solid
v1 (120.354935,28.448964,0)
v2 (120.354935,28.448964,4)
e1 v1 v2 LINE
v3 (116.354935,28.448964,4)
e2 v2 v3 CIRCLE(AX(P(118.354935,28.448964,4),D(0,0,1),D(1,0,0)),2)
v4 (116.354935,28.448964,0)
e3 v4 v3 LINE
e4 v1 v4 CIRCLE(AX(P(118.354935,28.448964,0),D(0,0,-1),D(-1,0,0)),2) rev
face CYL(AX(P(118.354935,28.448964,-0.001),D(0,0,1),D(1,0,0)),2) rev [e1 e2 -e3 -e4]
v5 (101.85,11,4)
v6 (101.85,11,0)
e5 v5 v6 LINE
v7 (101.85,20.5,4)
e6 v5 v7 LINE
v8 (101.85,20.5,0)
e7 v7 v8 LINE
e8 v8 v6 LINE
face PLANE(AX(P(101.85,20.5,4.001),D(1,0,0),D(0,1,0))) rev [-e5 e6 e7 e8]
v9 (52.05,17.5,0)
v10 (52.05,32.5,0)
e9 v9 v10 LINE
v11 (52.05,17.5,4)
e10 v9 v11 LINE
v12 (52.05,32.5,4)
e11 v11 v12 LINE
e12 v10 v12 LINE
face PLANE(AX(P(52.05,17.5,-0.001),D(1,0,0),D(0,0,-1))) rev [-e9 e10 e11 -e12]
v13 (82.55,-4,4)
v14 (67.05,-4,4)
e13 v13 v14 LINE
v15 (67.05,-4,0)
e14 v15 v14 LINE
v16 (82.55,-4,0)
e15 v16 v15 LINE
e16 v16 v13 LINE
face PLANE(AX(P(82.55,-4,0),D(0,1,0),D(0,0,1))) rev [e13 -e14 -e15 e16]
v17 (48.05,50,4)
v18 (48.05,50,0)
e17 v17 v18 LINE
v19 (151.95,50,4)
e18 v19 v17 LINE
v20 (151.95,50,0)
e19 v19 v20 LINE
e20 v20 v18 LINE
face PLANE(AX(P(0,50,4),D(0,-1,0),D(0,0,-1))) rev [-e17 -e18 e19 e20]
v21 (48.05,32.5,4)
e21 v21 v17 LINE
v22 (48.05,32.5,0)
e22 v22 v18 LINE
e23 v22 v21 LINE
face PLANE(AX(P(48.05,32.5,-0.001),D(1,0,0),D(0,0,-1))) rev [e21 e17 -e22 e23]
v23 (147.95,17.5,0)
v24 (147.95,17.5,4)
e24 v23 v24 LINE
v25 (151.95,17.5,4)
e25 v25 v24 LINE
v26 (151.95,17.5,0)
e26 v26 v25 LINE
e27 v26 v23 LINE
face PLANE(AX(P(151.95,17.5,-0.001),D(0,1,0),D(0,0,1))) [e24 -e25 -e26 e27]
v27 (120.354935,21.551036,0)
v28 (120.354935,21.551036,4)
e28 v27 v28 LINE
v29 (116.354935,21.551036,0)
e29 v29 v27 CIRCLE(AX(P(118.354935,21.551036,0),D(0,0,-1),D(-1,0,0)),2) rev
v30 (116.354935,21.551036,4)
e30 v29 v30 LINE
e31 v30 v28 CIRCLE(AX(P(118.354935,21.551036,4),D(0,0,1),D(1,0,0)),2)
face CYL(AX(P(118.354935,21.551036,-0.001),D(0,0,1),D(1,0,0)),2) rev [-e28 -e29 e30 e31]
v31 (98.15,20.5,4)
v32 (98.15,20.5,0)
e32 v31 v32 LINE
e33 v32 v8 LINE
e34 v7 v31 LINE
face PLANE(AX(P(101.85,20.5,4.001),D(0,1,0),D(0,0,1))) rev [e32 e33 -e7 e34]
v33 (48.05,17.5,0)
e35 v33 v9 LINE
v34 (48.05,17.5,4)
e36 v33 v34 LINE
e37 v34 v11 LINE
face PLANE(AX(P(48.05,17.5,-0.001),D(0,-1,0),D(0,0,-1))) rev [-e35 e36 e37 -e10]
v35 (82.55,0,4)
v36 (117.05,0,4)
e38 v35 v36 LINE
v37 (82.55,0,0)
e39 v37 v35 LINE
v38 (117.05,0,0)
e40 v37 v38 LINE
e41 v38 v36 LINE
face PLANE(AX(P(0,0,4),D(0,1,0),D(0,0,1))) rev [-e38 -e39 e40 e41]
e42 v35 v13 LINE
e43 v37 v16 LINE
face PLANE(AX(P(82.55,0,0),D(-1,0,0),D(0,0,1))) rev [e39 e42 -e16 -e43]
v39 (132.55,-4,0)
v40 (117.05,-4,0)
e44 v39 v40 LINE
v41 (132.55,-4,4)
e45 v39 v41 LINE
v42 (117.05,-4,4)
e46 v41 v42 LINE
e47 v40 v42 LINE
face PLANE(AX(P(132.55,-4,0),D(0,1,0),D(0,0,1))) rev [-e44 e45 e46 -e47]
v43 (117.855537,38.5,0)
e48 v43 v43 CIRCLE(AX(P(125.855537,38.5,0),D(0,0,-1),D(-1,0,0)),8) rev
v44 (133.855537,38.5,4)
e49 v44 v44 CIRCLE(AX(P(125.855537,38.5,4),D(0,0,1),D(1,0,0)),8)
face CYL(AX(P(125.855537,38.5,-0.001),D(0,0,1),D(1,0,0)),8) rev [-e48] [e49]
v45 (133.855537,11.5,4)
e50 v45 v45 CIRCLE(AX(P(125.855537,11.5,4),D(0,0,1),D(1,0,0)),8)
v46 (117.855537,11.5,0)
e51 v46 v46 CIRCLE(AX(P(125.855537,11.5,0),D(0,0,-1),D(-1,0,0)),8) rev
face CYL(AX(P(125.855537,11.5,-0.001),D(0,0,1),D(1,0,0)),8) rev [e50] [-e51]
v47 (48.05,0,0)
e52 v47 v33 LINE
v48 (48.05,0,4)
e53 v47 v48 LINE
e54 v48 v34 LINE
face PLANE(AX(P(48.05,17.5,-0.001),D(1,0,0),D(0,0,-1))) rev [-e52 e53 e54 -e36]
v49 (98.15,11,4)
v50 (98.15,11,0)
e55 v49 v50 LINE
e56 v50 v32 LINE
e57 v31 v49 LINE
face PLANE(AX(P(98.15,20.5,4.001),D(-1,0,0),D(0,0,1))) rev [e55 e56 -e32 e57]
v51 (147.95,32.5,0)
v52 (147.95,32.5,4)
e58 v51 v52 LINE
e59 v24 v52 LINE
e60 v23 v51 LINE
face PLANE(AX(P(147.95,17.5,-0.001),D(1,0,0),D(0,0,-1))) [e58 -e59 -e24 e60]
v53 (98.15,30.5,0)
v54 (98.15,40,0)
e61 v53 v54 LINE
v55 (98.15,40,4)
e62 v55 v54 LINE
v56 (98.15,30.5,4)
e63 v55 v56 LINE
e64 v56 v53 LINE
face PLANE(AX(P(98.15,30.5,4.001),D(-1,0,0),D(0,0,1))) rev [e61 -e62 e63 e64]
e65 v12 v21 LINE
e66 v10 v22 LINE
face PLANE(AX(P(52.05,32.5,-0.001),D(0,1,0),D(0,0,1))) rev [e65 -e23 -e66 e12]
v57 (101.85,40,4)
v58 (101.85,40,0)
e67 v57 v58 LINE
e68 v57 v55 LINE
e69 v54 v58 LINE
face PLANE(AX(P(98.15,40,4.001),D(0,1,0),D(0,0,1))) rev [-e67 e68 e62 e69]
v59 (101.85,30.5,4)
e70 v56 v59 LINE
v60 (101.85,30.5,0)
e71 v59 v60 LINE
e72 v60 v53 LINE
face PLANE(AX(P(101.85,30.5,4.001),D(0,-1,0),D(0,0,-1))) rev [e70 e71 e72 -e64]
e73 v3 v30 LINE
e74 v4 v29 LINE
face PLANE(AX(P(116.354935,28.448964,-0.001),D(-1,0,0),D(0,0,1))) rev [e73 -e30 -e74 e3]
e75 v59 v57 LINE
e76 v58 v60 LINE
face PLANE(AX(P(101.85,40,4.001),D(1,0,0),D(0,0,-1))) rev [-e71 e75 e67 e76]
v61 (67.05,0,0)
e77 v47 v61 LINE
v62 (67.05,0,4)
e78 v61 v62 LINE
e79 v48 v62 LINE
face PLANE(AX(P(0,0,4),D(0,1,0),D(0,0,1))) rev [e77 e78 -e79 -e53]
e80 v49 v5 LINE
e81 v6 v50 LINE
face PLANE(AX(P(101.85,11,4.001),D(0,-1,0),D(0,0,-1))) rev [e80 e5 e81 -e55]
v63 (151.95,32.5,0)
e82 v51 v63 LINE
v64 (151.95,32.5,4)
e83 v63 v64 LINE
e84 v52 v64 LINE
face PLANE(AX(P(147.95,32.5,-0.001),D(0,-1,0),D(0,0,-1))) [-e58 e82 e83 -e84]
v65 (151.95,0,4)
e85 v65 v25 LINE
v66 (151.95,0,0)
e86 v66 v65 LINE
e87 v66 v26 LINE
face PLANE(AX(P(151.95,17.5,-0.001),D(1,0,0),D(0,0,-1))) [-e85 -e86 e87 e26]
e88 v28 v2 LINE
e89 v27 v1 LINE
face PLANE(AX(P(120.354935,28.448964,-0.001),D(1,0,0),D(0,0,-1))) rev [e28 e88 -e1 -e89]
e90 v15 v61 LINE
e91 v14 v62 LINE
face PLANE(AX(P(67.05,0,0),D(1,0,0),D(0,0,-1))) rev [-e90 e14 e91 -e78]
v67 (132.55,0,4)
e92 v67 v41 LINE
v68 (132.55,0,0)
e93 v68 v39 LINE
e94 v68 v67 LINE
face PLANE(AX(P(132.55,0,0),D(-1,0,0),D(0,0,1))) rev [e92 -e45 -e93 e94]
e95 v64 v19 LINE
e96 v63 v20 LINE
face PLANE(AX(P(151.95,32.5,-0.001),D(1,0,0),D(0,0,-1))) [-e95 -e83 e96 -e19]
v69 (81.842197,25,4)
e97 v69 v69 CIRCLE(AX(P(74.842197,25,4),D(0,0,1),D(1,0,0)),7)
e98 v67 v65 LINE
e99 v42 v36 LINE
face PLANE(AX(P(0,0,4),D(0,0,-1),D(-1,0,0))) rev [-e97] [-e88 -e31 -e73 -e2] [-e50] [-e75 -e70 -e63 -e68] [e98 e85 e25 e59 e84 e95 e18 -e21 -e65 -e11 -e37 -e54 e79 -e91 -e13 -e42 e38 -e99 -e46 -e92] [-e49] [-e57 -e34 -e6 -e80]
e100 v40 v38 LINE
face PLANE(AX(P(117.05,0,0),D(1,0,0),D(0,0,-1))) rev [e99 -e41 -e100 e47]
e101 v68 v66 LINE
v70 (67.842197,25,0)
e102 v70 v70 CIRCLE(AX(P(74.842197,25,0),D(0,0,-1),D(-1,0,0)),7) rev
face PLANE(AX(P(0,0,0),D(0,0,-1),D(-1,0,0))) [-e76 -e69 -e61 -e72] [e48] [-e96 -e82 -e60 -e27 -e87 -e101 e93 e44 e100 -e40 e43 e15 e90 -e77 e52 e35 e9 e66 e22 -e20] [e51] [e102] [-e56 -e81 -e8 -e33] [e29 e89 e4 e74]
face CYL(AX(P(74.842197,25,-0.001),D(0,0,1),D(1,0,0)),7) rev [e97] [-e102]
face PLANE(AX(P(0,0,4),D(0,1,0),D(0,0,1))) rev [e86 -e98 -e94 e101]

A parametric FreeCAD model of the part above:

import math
import FreeCAD as App
import Part
import Sketcher

V = App.Vector


def add_polygon(sketch, points):
    """Adds a closed chain of lines whose ends are joined by coincident constraints."""
    first, n = sketch.GeometryCount, len(points)
    for a, b in zip(points, points[1:] + points[:1]):
        sketch.addGeometry(Part.LineSegment(App.Vector(*a, 0), App.Vector(*b, 0)), False)
    for i in range(n):
        sketch.addConstraint(Sketcher.Constraint("Coincident", first + i, 2, first + (i + 1) % n, 1))

doc = App.newDocument("Part")
body = doc.addObject("PartDesign::Body", "Body")

sketch1 = doc.addObject("Sketcher::SketchObject", "Sketch")
body.addObject(sketch1)
sketch1.AttachmentSupport = (doc.XY_Plane, [""])
sketch1.MapMode = "FlatFace"
add_polygon(sketch1, [(0, 50), (0, 0), (200, 0), (200, 50)])
sketch1.addConstraint(Sketcher.Constraint("Vertical", 0))
sketch1.addConstraint(Sketcher.Constraint("Horizontal", 1))
sketch1.addConstraint(Sketcher.Constraint("Vertical", 2))
sketch1.addConstraint(Sketcher.Constraint("Horizontal", 3))
sketch1.addConstraint(Sketcher.Constraint("Coincident", 0, 2, -1, 1))
sketch1.addConstraint(Sketcher.Constraint("DistanceX", 1, 1, 1, 2, 200.0))
sketch1.addConstraint(Sketcher.Constraint("DistanceY", 0, 2, 0, 1, 50.0))
pad1 = doc.addObject("PartDesign::Pad", "Pad")
body.addObject(pad1)
pad1.Profile = sketch1
pad1.Length = 4

sketch2 = doc.addObject("Sketcher::SketchObject", "Sketch001")
body.addObject(sketch2)
sketch2.AttachmentSupport = (doc.XY_Plane, [""])
sketch2.MapMode = "FlatFace"
sketch2.AttachmentOffset = App.Placement(V(0, 0, 4), App.Rotation())
add_polygon(sketch2, [(182.6, 0), (182.6, -4), (167.1, -4), (167.1, 0)])
add_polygon(sketch2, [(132.6, 0), (132.6, -4), (117, -4), (117, 0)])
add_polygon(sketch2, [(82.5, 0), (82.5, -4), (67, -4), (67, 0)])
add_polygon(sketch2, [(32.5, 0), (32.5, -4), (17.1, -4), (17.1, 0)])
sketch2.addConstraint(Sketcher.Constraint("Vertical", 0))
sketch2.addConstraint(Sketcher.Constraint("Horizontal", 1))
sketch2.addConstraint(Sketcher.Constraint("Vertical", 2))
sketch2.addConstraint(Sketcher.Constraint("Horizontal", 3))
sketch2.addConstraint(Sketcher.Constraint("Vertical", 4))
sketch2.addConstraint(Sketcher.Constraint("Horizontal", 5))
sketch2.addConstraint(Sketcher.Constraint("Vertical", 6))
sketch2.addConstraint(Sketcher.Constraint("Horizontal", 7))
sketch2.addConstraint(Sketcher.Constraint("Vertical", 8))
sketch2.addConstraint(Sketcher.Constraint("Horizontal", 9))
sketch2.addConstraint(Sketcher.Constraint("Vertical", 10))
sketch2.addConstraint(Sketcher.Constraint("Horizontal", 11))
sketch2.addConstraint(Sketcher.Constraint("Vertical", 12))
sketch2.addConstraint(Sketcher.Constraint("Horizontal", 13))
sketch2.addConstraint(Sketcher.Constraint("Vertical", 14))
sketch2.addConstraint(Sketcher.Constraint("Horizontal", 15))
sketch2.addConstraint(Sketcher.Constraint("PointOnObject", 2, 2, -1))
sketch2.addConstraint(Sketcher.Constraint("PointOnObject", 6, 2, -1))
sketch2.addConstraint(Sketcher.Constraint("PointOnObject", 10, 2, -1))
sketch2.addConstraint(Sketcher.Constraint("PointOnObject", 14, 2, -1))
sketch2.addConstraint(Sketcher.Constraint("Horizontal", 1, 2, 4, 2))
sketch2.addConstraint(Sketcher.Constraint("Horizontal", 5, 2, 8, 2))
sketch2.addConstraint(Sketcher.Constraint("Horizontal", 9, 2, 12, 2))
sketch2.addConstraint(Sketcher.Constraint("Equal", 3, 5))
sketch2.addConstraint(Sketcher.Constraint("Equal", 7, 9))
sketch2.addConstraint(Sketcher.Constraint("Equal", 11, 13))
sketch2.addConstraint(Sketcher.Constraint("DistanceY", 0, 2, 0, 1, 4.0))
sketch2.addConstraint(Sketcher.Constraint("DistanceX", 1, 2, 1, 1, 15.5))
sketch2.addConstraint(Sketcher.Constraint("DistanceX", 4, 2, 0, 2, 50.0))
sketch2.addConstraint(Sketcher.Constraint("DistanceX", 8, 2, 4, 2, 50.0))
sketch2.addConstraint(Sketcher.Constraint("DistanceX", 12, 2, 8, 2, 50.0))
sketch2.addConstraint(Sketcher.Constraint("DistanceX", -1, 1, 0, 2, 182.55))
pad2 = doc.addObject("PartDesign::Pad", "Pad001")
body.addObject(pad2)
pad2.Profile = sketch2
pad2.Length = 4
pad2.Reversed = True

sketch3 = doc.addObject("Sketcher::SketchObject", "Sketch002")
body.addObject(sketch3)
sketch3.AttachmentSupport = (doc.XY_Plane, [""])
sketch3.MapMode = "FlatFace"
sketch3.AttachmentOffset = App.Placement(V(0, 0, 4), App.Rotation())
add_polygon(sketch3, [(0, 32.5), (0, 17.5), (4, 17.5), (4, 32.5)])
sketch3.addConstraint(Sketcher.Constraint("Vertical", 0))
sketch3.addConstraint(Sketcher.Constraint("Horizontal", 1))
sketch3.addConstraint(Sketcher.Constraint("Vertical", 2))
sketch3.addConstraint(Sketcher.Constraint("Horizontal", 3))
sketch3.addConstraint(Sketcher.Constraint("PointOnObject", 0, 2, -2))
sketch3.addConstraint(Sketcher.Constraint("DistanceX", 1, 1, 1, 2, 4.0))
sketch3.addConstraint(Sketcher.Constraint("DistanceY", 0, 2, 0, 1, 15.0))
sketch3.addConstraint(Sketcher.Constraint("DistanceY", -1, 1, 0, 2, 17.5))
pocket1 = doc.addObject("PartDesign::Pocket", "Pocket")
body.addObject(pocket1)
pocket1.Profile = sketch3
pocket1.Type = "UpToFirst"

sketch4 = doc.addObject("Sketcher::SketchObject", "Sketch003")
body.addObject(sketch4)
sketch4.AttachmentSupport = (doc.XY_Plane, [""])
sketch4.MapMode = "FlatFace"
sketch4.AttachmentOffset = App.Placement(V(0, 0, 4), App.Rotation())
add_polygon(sketch4, [(196, 32.5), (196, 17.5), (200, 17.5), (200, 32.5)])
sketch4.addConstraint(Sketcher.Constraint("Vertical", 0))
sketch4.addConstraint(Sketcher.Constraint("Horizontal", 1))
sketch4.addConstraint(Sketcher.Constraint("Vertical", 2))
sketch4.addConstraint(Sketcher.Constraint("Horizontal", 3))
sketch4.addConstraint(Sketcher.Constraint("DistanceX", 1, 1, 1, 2, 4.0))
sketch4.addConstraint(Sketcher.Constraint("DistanceY", 0, 2, 0, 1, 15.0))
sketch4.addConstraint(Sketcher.Constraint("DistanceX", -1, 1, 0, 2, 196.0))
sketch4.addConstraint(Sketcher.Constraint("DistanceY", -1, 1, 0, 2, 17.5))
pocket2 = doc.addObject("PartDesign::Pocket", "Pocket001")
body.addObject(pocket2)
pocket2.Profile = sketch4
pocket2.Type = "UpToFirst"

sketch5 = doc.addObject("Sketcher::SketchObject", "Sketch004")
body.addObject(sketch5)
sketch5.AttachmentSupport = (doc.XY_Plane, [""])
sketch5.MapMode = "FlatFace"
add_polygon(sketch5, [(101.8, 40), (101.8, 30.5), (98.2, 30.5), (98.2, 40)])
sketch5.addConstraint(Sketcher.Constraint("Vertical", 0))
sketch5.addConstraint(Sketcher.Constraint("Horizontal", 1))
sketch5.addConstraint(Sketcher.Constraint("Vertical", 2))
sketch5.addConstraint(Sketcher.Constraint("Horizontal", 3))
sketch5.addConstraint(Sketcher.Constraint("DistanceX", 1, 2, 1, 1, 3.7))
sketch5.addConstraint(Sketcher.Constraint("DistanceY", 0, 2, 0, 1, 9.5))
sketch5.addConstraint(Sketcher.Constraint("DistanceY", -1, 1, 2, 2, 40.0))
sketch5.addConstraint(Sketcher.Constraint("DistanceX", -1, 1, 0, 2, 101.85))
pocket3 = doc.addObject("PartDesign::Pocket", "Pocket002")
body.addObject(pocket3)
pocket3.Profile = sketch5
pocket3.Type = "UpToFirst"
pocket3.Reversed = True

sketch6 = doc.addObject("Sketcher::SketchObject", "Sketch005")
body.addObject(sketch6)
sketch6.AttachmentSupport = (doc.XY_Plane, [""])
sketch6.MapMode = "FlatFace"
add_polygon(sketch6, [(101.8, 20.5), (101.8, 11), (98.2, 11), (98.2, 20.5)])
sketch6.addConstraint(Sketcher.Constraint("Vertical", 0))
sketch6.addConstraint(Sketcher.Constraint("Horizontal", 1))
sketch6.addConstraint(Sketcher.Constraint("Vertical", 2))
sketch6.addConstraint(Sketcher.Constraint("Horizontal", 3))
sketch6.addConstraint(Sketcher.Constraint("DistanceX", 1, 2, 1, 1, 3.7))
sketch6.addConstraint(Sketcher.Constraint("DistanceY", 0, 2, 0, 1, 9.5))
sketch6.addConstraint(Sketcher.Constraint("DistanceY", -1, 1, 0, 2, 11.0))
sketch6.addConstraint(Sketcher.Constraint("DistanceX", -1, 1, 0, 2, 101.85))
pocket4 = doc.addObject("PartDesign::Pocket", "Pocket003")
body.addObject(pocket4)
pocket4.Profile = sketch6
pocket4.Type = "UpToFirst"
pocket4.Reversed = True

sketch7 = doc.addObject("Sketcher::SketchObject", "Sketch006")
body.addObject(sketch7)
sketch7.AttachmentSupport = (doc.XY_Plane, [""])
sketch7.MapMode = "FlatFace"
sketch7.AttachmentOffset = App.Placement(V(0, 0, 4), App.Rotation())
add_polygon(sketch7, [(52, 32.5), (48, 32.5), (48, 66.1), (-25.3, 66.1), (-25.3, -17.1), (48, -17.1), (48, 17.5), (52, 17.5)])
sketch7.addConstraint(Sketcher.Constraint("Horizontal", 0))
sketch7.addConstraint(Sketcher.Constraint("Vertical", 1))
sketch7.addConstraint(Sketcher.Constraint("Horizontal", 2))
sketch7.addConstraint(Sketcher.Constraint("Vertical", 3))
sketch7.addConstraint(Sketcher.Constraint("Horizontal", 4))
sketch7.addConstraint(Sketcher.Constraint("Vertical", 5))
sketch7.addConstraint(Sketcher.Constraint("Horizontal", 6))
sketch7.addConstraint(Sketcher.Constraint("Vertical", 7))
sketch7.addConstraint(Sketcher.Constraint("Vertical", 1, 2, 4, 2))
sketch7.addConstraint(Sketcher.Constraint("DistanceX", 0, 2, 0, 1, 4.0))
sketch7.addConstraint(Sketcher.Constraint("DistanceY", 7, 1, 7, 2, 15.0))
sketch7.addConstraint(Sketcher.Constraint("DistanceY", -1, 1, 0, 2, 32.5))
sketch7.addConstraint(Sketcher.Constraint("DistanceX", -1, 1, 0, 2, 48.05))
sketch7.addConstraint(Sketcher.Constraint("DistanceX", 2, 2, 2, 1, 73.351319))
sketch7.addConstraint(Sketcher.Constraint("DistanceY", 5, 1, 5, 2, 34.571359))
sketch7.addConstraint(Sketcher.Constraint("DistanceY", 1, 1, 1, 2, 33.641635))
pocket5 = doc.addObject("PartDesign::Pocket", "Pocket004")
body.addObject(pocket5)
pocket5.Profile = sketch7
pocket5.Length = 4
doc.recompute()

datumplane = doc.addObject("PartDesign::Plane", "DatumPlane")
body.addObject(datumplane)
datumplane.AttachmentSupport = (doc.YZ_Plane, [""])
datumplane.MapMode = "FlatFace"
datumplane.AttachmentOffset = App.Placement(V(0, 0, 100), App.Rotation())
mirrored = doc.addObject("PartDesign::Mirrored", "Mirrored")
body.addObject(mirrored)
mirrored.Originals = [pocket5]
mirrored.MirrorPlane = (datumplane, [""])
body.Tip = mirrored

sketch8 = doc.addObject("Sketcher::SketchObject", "Sketch007")
body.addObject(sketch8)
sketch8.AttachmentSupport = (doc.XY_Plane, [""])
sketch8.MapMode = "FlatFace"
sketch8.AttachmentOffset = App.Placement(V(0, 0, 4), App.Rotation())
sketch8.addGeometry(Part.Circle(V(126, 12, 0), V(0, 0, 1), 8), False)
sketch8.addConstraint(Sketcher.Constraint("Diameter", 0, 16.0))
sketch8.addConstraint(Sketcher.Constraint("DistanceY", -1, 1, 0, 3, 11.5))
sketch8.addConstraint(Sketcher.Constraint("DistanceX", -1, 1, 0, 3, 125.855537))
pocket6 = doc.addObject("PartDesign::Pocket", "Pocket005")
body.addObject(pocket6)
pocket6.Profile = sketch8
pocket6.Type = "UpToFirst"

sketch9 = doc.addObject("Sketcher::SketchObject", "Sketch008")
body.addObject(sketch9)
sketch9.AttachmentSupport = (doc.XY_Plane, [""])
sketch9.MapMode = "FlatFace"
sketch9.AttachmentOffset = App.Placement(V(0, 0, 4), App.Rotation())
sketch9.addGeometry(Part.Circle(V(126, 38, 0), V(0, 0, 1), 8), False)
sketch9.addConstraint(Sketcher.Constraint("Diameter", 0, 16.0))
sketch9.addConstraint(Sketcher.Constraint("DistanceY", -1, 1, 0, 3, 38.5))
sketch9.addConstraint(Sketcher.Constraint("DistanceX", -1, 1, 0, 3, 125.855537))
pocket7 = doc.addObject("PartDesign::Pocket", "Pocket006")
body.addObject(pocket7)
pocket7.Profile = sketch9
pocket7.Type = "UpToFirst"

sketch10 = doc.addObject("Sketcher::SketchObject", "Sketch009")
body.addObject(sketch10)
sketch10.AttachmentSupport = (doc.XY_Plane, [""])
sketch10.MapMode = "FlatFace"
sketch10.AttachmentOffset = App.Placement(V(0, 0, 4), App.Rotation())
sketch10.addGeometry(Part.Circle(V(75, 25, 0), V(0, 0, 1), 7), False)
sketch10.addConstraint(Sketcher.Constraint("Diameter", 0, 14.0))
sketch10.addConstraint(Sketcher.Constraint("DistanceY", -1, 1, 0, 3, 25.0))
sketch10.addConstraint(Sketcher.Constraint("DistanceX", -1, 1, 0, 3, 74.842197))
pocket8 = doc.addObject("PartDesign::Pocket", "Pocket007")
body.addObject(pocket8)
pocket8.Profile = sketch10
pocket8.Type = "UpToFirst"

sketch11 = doc.addObject("Sketcher::SketchObject", "Sketch010")
body.addObject(sketch11)
sketch11.AttachmentSupport = (doc.XY_Plane, [""])
sketch11.MapMode = "FlatFace"
sketch11.AttachmentOffset = App.Placement(V(0, 0, 4), App.Rotation())
sketch11.addGeometry(Part.LineSegment(V(120.4, 21.6, 0), V(120.4, 28.4, 0)), False)
sketch11.addGeometry(Part.ArcOfCircle(Part.Circle(V(118.4, 28.4, 0), V(0, 0, 1), 2), math.radians(0), math.radians(180)), False)
sketch11.addGeometry(Part.LineSegment(V(116.4, 28.4, 0), V(116.4, 21.6, 0)), False)
sketch11.addGeometry(Part.ArcOfCircle(Part.Circle(V(118.4, 21.6, 0), V(0, 0, 1), 2), math.radians(180), math.radians(360)), False)
sketch11.addConstraint(Sketcher.Constraint("Tangent", 0, 2, 1, 1))
sketch11.addConstraint(Sketcher.Constraint("Tangent", 1, 2, 2, 1))
sketch11.addConstraint(Sketcher.Constraint("Tangent", 2, 2, 3, 1))
sketch11.addConstraint(Sketcher.Constraint("Tangent", 3, 2, 0, 1))
sketch11.addConstraint(Sketcher.Constraint("Vertical", 0))
sketch11.addConstraint(Sketcher.Constraint("Vertical", 2))
sketch11.addConstraint(Sketcher.Constraint("Radius", 1, 2.0))
sketch11.addConstraint(Sketcher.Constraint("DistanceY", 0, 1, 0, 2, 6.897928))
sketch11.addConstraint(Sketcher.Constraint("DistanceX", -1, 1, 1, 3, 118.354935))
sketch11.addConstraint(Sketcher.Constraint("DistanceY", -1, 1, 1, 3, 28.448964))
pocket9 = doc.addObject("PartDesign::Pocket", "Pocket008")
body.addObject(pocket9)
pocket9.Profile = sketch11
pocket9.Type = "UpToFirst"

doc.recompute()
